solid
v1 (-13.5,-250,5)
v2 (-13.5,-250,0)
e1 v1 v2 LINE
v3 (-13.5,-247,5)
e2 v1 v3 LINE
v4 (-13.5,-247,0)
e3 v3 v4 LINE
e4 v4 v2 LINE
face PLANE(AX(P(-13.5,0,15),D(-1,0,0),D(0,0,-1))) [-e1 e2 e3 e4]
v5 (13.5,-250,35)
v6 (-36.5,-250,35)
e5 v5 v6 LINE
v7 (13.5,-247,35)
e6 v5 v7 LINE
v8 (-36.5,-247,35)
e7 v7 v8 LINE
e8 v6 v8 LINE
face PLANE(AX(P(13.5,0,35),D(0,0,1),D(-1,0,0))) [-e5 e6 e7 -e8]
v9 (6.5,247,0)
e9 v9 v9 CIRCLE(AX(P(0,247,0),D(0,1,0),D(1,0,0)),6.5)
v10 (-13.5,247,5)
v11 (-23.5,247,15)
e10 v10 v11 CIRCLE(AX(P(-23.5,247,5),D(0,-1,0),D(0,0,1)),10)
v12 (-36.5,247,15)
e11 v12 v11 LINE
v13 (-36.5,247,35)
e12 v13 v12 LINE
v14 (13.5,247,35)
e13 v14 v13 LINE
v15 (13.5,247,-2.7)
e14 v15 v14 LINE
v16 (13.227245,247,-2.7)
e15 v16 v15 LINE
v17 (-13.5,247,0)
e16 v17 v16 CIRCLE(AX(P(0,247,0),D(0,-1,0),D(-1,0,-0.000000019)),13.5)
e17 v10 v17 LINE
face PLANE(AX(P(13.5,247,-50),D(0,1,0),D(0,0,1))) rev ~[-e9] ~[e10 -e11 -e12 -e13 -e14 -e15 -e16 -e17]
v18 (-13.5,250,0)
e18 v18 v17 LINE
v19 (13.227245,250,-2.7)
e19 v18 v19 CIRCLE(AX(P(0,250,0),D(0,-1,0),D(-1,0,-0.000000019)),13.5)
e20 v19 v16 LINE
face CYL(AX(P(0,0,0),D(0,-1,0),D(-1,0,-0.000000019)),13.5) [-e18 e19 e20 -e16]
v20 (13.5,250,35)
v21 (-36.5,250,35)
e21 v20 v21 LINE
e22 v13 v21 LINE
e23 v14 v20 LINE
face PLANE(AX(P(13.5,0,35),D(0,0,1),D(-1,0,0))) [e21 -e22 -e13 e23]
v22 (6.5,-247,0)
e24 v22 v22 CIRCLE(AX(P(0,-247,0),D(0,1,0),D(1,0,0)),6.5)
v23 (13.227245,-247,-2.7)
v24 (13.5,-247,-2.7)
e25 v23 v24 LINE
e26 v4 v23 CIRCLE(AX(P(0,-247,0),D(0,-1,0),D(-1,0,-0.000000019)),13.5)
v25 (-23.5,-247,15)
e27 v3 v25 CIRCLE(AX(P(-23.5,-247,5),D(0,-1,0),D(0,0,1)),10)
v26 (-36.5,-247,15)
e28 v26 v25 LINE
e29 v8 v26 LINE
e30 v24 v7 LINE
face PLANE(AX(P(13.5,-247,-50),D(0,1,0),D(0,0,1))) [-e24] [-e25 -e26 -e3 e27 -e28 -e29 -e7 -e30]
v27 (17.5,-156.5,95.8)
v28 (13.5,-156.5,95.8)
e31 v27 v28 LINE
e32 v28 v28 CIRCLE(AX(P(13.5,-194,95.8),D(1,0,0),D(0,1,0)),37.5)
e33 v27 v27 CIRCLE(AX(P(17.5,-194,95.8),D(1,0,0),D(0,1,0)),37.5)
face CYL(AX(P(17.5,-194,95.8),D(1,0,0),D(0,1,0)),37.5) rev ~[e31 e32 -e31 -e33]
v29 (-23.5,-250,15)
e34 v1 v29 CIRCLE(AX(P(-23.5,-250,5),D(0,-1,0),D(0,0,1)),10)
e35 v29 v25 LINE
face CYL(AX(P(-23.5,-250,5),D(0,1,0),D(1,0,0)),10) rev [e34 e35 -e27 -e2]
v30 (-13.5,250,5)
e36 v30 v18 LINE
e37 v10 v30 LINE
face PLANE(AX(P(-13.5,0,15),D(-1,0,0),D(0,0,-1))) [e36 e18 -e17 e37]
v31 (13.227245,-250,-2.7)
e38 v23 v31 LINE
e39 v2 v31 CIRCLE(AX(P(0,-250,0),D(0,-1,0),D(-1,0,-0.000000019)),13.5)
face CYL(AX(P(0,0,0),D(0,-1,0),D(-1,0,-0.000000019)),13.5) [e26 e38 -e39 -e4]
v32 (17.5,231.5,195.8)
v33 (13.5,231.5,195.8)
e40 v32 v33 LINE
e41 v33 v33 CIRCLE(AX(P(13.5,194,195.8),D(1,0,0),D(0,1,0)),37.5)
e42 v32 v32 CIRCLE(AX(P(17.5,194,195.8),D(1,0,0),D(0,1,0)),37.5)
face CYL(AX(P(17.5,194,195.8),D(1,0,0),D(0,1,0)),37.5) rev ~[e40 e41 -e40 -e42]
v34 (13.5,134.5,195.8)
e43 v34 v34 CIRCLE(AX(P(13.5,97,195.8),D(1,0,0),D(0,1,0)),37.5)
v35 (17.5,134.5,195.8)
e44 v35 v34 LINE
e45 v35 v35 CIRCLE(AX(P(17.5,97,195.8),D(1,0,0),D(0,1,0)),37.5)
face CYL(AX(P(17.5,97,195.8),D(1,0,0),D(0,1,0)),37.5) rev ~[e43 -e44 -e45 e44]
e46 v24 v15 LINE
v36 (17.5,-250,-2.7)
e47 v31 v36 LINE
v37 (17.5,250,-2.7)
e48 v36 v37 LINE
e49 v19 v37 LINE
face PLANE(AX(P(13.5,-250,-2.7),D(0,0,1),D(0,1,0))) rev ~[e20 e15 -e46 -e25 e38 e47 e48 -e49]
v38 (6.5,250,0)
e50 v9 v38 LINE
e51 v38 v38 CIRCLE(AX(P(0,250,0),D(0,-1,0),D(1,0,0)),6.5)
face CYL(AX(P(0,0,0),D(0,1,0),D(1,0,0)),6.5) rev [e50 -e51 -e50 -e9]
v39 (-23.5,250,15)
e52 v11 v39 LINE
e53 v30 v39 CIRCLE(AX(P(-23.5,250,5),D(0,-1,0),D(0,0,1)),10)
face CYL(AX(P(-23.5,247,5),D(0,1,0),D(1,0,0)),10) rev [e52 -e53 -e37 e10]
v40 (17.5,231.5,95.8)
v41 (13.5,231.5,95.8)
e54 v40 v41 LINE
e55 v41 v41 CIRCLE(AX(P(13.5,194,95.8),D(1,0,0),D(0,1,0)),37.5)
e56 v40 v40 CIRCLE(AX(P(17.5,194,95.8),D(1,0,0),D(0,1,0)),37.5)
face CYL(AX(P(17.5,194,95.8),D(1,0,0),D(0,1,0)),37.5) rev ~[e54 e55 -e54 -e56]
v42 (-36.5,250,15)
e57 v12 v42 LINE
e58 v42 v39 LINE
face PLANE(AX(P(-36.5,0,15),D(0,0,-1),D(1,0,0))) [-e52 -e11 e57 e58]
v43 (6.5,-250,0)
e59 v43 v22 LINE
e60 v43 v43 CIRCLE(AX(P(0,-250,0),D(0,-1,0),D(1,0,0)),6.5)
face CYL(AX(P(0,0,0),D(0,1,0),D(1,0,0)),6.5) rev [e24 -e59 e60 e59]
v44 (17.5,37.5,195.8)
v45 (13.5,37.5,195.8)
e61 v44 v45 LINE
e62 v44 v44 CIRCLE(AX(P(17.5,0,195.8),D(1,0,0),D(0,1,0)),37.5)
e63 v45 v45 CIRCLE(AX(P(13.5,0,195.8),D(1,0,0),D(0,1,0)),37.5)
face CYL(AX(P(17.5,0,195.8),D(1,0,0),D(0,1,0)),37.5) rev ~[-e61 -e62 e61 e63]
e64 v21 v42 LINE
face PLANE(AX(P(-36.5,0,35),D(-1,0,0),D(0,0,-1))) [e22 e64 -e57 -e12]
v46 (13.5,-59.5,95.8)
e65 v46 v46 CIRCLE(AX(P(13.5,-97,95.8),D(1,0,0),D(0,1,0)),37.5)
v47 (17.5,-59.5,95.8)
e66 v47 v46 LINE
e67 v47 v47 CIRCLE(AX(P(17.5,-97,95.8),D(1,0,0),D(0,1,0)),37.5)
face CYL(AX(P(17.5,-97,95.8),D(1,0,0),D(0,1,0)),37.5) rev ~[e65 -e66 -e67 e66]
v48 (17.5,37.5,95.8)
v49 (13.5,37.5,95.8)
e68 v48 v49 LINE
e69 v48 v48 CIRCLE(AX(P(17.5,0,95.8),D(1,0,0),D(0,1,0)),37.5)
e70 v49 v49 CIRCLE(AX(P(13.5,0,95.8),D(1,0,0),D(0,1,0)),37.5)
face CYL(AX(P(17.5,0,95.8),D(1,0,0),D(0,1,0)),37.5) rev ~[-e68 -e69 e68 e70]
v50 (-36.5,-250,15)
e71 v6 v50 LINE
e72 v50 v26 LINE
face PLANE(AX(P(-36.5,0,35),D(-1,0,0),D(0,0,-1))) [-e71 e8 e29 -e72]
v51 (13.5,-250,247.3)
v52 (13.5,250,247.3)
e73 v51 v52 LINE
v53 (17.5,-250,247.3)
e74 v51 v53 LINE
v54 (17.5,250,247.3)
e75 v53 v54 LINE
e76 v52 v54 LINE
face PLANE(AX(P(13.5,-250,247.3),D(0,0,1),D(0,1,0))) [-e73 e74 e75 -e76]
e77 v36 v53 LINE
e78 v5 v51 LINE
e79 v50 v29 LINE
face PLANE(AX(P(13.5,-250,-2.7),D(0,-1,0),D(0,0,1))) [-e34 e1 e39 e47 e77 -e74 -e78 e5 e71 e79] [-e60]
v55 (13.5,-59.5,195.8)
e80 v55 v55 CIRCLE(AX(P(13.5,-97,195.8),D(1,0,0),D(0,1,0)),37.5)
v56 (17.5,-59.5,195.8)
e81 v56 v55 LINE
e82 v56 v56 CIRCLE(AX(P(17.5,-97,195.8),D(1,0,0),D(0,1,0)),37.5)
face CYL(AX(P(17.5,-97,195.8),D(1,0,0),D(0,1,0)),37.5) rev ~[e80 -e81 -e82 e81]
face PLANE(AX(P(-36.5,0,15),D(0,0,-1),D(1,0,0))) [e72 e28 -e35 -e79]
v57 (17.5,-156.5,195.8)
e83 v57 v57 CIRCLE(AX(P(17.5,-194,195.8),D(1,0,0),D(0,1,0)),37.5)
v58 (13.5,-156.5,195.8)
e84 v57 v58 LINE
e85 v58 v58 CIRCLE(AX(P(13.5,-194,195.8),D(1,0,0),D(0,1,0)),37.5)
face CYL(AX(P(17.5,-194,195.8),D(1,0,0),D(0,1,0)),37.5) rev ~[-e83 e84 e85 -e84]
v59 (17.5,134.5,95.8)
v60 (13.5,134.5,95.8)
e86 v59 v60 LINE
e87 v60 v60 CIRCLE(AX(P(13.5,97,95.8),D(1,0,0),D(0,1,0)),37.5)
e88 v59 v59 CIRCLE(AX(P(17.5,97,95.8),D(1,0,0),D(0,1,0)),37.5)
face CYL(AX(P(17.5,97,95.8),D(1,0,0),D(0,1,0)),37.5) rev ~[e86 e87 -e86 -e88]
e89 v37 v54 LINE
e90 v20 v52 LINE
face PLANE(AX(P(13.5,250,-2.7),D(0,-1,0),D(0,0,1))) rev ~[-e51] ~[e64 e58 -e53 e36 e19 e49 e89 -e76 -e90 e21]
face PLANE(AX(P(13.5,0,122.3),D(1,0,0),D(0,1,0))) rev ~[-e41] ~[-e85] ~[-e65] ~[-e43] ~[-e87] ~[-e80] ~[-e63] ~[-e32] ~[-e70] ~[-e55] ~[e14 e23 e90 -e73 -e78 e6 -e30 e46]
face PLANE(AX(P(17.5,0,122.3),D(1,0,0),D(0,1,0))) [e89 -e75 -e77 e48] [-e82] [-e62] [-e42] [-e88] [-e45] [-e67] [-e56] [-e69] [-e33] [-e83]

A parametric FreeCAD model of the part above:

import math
import FreeCAD as App
import Part
import Sketcher
Q = App.Units.Quantity


def edges_at(feature, points):
    """Names of the edges that pass closest to the given points."""
    edges = feature.Shape.Edges
    near = lambda p: min(range(len(edges)), key=lambda i: edges[i].distToShape(Part.Vertex(*p))[0])
    return sorted({f"Edge{near(p) + 1}" for p in points})

doc = App.newDocument("Part")
body = doc.addObject("PartDesign::Body", "Body")
body.AllowCompound = True

# Sketch on XZ plane
sketch1 = body.newObject("Sketcher::SketchObject", "Sketch")
sketch1.AttachmentSupport = (doc.getObject("XZ_Plane"), [""])
sketch1.MapMode = "FlatFace"
sketch1.addGeometry(Part.LineSegment(App.Vector(-13.5, 15, 0), App.Vector(-13.5, 0, 0)), False)
sketch1.addGeometry(Part.ArcOfCircle(Part.Circle(App.Vector(0, 0, 0), App.Vector(0, 0, 1), 13.5), math.radians(-180), math.radians(-12)), False)
sketch1.addGeometry(Part.LineSegment(App.Vector(13.23, -2.7, 0), App.Vector(13.5, -2.7, 0)), False)
sketch1.addGeometry(Part.LineSegment(App.Vector(13.5, -2.7, 0), App.Vector(13.5, 35, 0)), False)
sketch1.addGeometry(Part.LineSegment(App.Vector(13.5, 35, 0), App.Vector(-36.5, 35, 0)), False)
sketch1.addGeometry(Part.LineSegment(App.Vector(-36.5, 35, 0), App.Vector(-36.5, 15, 0)), False)
sketch1.addGeometry(Part.LineSegment(App.Vector(-36.5, 15, 0), App.Vector(-13.5, 15, 0)), False)
sketch1.addGeometry(Part.Circle(App.Vector(0, 0, 0), App.Vector(0, 0, 1), 6.5), False)
sketch1.addConstraint(Sketcher.Constraint("Tangent", 0, 2, 1, 1))
sketch1.addConstraint(Sketcher.Constraint("Coincident", 1, 2, 2, 1))
sketch1.addConstraint(Sketcher.Constraint("Coincident", 2, 2, 3, 1))
sketch1.addConstraint(Sketcher.Constraint("Coincident", 3, 2, 4, 1))
sketch1.addConstraint(Sketcher.Constraint("Coincident", 4, 2, 5, 1))
sketch1.addConstraint(Sketcher.Constraint("Coincident", 5, 2, 6, 1))
sketch1.addConstraint(Sketcher.Constraint("Coincident", 6, 2, 0, 1))
sketch1.addConstraint(Sketcher.Constraint("Vertical", 0))
sketch1.addConstraint(Sketcher.Constraint("Horizontal", 2))
sketch1.addConstraint(Sketcher.Constraint("Vertical", 3))
sketch1.addConstraint(Sketcher.Constraint("Horizontal", 4))
sketch1.addConstraint(Sketcher.Constraint("Vertical", 5))
sketch1.addConstraint(Sketcher.Constraint("Horizontal", 6))
sketch1.addConstraint(Sketcher.Constraint("Coincident", 1, 3, -1, 1))
sketch1.addConstraint(Sketcher.Constraint("Coincident", 7, 3, -1, 1))
sketch1.addConstraint(Sketcher.Constraint("Diameter", 7, Q("13 mm")))
sketch1.addConstraint(Sketcher.Constraint("Radius", 1, Q("13.5 mm")))
sketch1.addConstraint(Sketcher.Constraint("DistanceX", 4, 2, 4, 1, Q("50 mm")))
sketch1.addConstraint(Sketcher.Constraint("DistanceX", 6, 1, 6, 2, Q("23 mm")))
sketch1.addConstraint(Sketcher.Constraint("DistanceY", 0, 2, 0, 1, Q("15 mm")))
sketch1.addConstraint(Sketcher.Constraint("DistanceY", 5, 2, 5, 1, Q("20 mm")))
sketch1.addConstraint(Sketcher.Constraint("DistanceY", 3, 1, 3, 2, Q("37.7 mm")))
pad1 = body.newObject("PartDesign::Pad", "Pad")
pad1.Profile = sketch1
pad1.Length = 500
pad1.Midplane = True

# Sketch on YZ plane
sketch2 = body.newObject("Sketcher::SketchObject", "Sketch001")
sketch2.AttachmentSupport = (doc.getObject("YZ_Plane"), [""])
sketch2.MapMode = "FlatFace"
sketch2.AttachmentOffset = App.Placement(App.Vector(0, 0, 13.5), App.Rotation())
sketch2.addGeometry(Part.LineSegment(App.Vector(-247, 50, 0), App.Vector(-247, -50, 0)), False)
sketch2.addGeometry(Part.LineSegment(App.Vector(-247, -50, 0), App.Vector(247, -50, 0)), False)
sketch2.addGeometry(Part.LineSegment(App.Vector(247, -50, 0), App.Vector(247, 50, 0)), False)
sketch2.addGeometry(Part.LineSegment(App.Vector(247, 50, 0), App.Vector(-247, 50, 0)), False)
sketch2.addConstraint(Sketcher.Constraint("Coincident", 0, 2, 1, 1))
sketch2.addConstraint(Sketcher.Constraint("Coincident", 1, 2, 2, 1))
sketch2.addConstraint(Sketcher.Constraint("Coincident", 2, 2, 3, 1))
sketch2.addConstraint(Sketcher.Constraint("Coincident", 3, 2, 0, 1))
sketch2.addConstraint(Sketcher.Constraint("Vertical", 0))
sketch2.addConstraint(Sketcher.Constraint("Horizontal", 1))
sketch2.addConstraint(Sketcher.Constraint("Vertical", 2))
sketch2.addConstraint(Sketcher.Constraint("Horizontal", 3))
sketch2.addConstraint(Sketcher.Constraint("Symmetric", 0, 2, 2, 2, -1, 1))
sketch2.addConstraint(Sketcher.Constraint("DistanceX", 1, 1, 1, 2, Q("494 mm")))
sketch2.addConstraint(Sketcher.Constraint("DistanceY", 0, 2, 0, 1, Q("100 mm")))
pocket1 = body.newObject("PartDesign::Pocket", "Pocket")
pocket1.Profile = sketch2
pocket1.Length = 100
doc.recompute()

fillet = body.newObject("PartDesign::Fillet", "Fillet")
fillet.Base = (pocket1, edges_at(pocket1, [(-13.5, 248.5, 15), (-13.5, -248.5, 15)]))
fillet.Radius = 10

# Sketch on YZ plane
sketch3 = body.newObject("Sketcher::SketchObject", "Sketch002")
sketch3.AttachmentSupport = (doc.getObject("YZ_Plane"), [""])
sketch3.MapMode = "FlatFace"
sketch3.AttachmentOffset = App.Placement(App.Vector(0, 0, 13.5), App.Rotation())
sketch3.addGeometry(Part.LineSegment(App.Vector(-250, 247, 0), App.Vector(-250, -3, 0)), False)
sketch3.addGeometry(Part.LineSegment(App.Vector(-250, -3, 0), App.Vector(250, -3, 0)), False)
sketch3.addGeometry(Part.LineSegment(App.Vector(250, -3, 0), App.Vector(250, 247, 0)), False)
sketch3.addGeometry(Part.LineSegment(App.Vector(250, 247, 0), App.Vector(-250, 247, 0)), False)
sketch3.addConstraint(Sketcher.Constraint("Coincident", 0, 2, 1, 1))
sketch3.addConstraint(Sketcher.Constraint("Coincident", 1, 2, 2, 1))
sketch3.addConstraint(Sketcher.Constraint("Coincident", 2, 2, 3, 1))
sketch3.addConstraint(Sketcher.Constraint("Coincident", 3, 2, 0, 1))
sketch3.addConstraint(Sketcher.Constraint("Vertical", 0))
sketch3.addConstraint(Sketcher.Constraint("Horizontal", 1))
sketch3.addConstraint(Sketcher.Constraint("Vertical", 2))
sketch3.addConstraint(Sketcher.Constraint("Horizontal", 3))
sketch3.addConstraint(Sketcher.Constraint("DistanceX", 1, 1, 1, 2, Q("500 mm")))
sketch3.addConstraint(Sketcher.Constraint("DistanceY", 0, 2, 0, 1, Q("250 mm")))
sketch3.addConstraint(Sketcher.Constraint("DistanceX", 0, 2, -1, 1, Q("250 mm")))
sketch3.addConstraint(Sketcher.Constraint("DistanceY", 0, 2, -1, 1, Q("2.7 mm")))
pad2 = body.newObject("PartDesign::Pad", "Pad001")
pad2.Profile = sketch3
pad2.Length = 4

# Sketch on YZ plane
sketch4 = body.newObject("Sketcher::SketchObject", "Sketch003")
sketch4.AttachmentSupport = (doc.getObject("YZ_Plane"), [""])
sketch4.MapMode = "FlatFace"
sketch4.AttachmentOffset = App.Placement(App.Vector(0, 0, 17.5), App.Rotation())
sketch4.addGeometry(Part.Circle(App.Vector(-194, 96, 0), App.Vector(0, 0, 1), 38), False)
sketch4.addGeometry(Part.Circle(App.Vector(-194, 196, 0), App.Vector(0, 0, 1), 38), False)
sketch4.addGeometry(Part.Circle(App.Vector(-97, 96, 0), App.Vector(0, 0, 1), 38), False)
sketch4.addGeometry(Part.Circle(App.Vector(-97, 196, 0), App.Vector(0, 0, 1), 38), False)
sketch4.addGeometry(Part.Circle(App.Vector(0, 96, 0), App.Vector(0, 0, 1), 38), False)
sketch4.addGeometry(Part.Circle(App.Vector(0, 196, 0), App.Vector(0, 0, 1), 38), False)
sketch4.addGeometry(Part.Circle(App.Vector(97, 96, 0), App.Vector(0, 0, 1), 38), False)
sketch4.addGeometry(Part.Circle(App.Vector(97, 196, 0), App.Vector(0, 0, 1), 38), False)
sketch4.addGeometry(Part.Circle(App.Vector(194, 96, 0), App.Vector(0, 0, 1), 38), False)
sketch4.addGeometry(Part.Circle(App.Vector(194, 196, 0), App.Vector(0, 0, 1), 38), False)
sketch4.addConstraint(Sketcher.Constraint("Equal", 0, 1))
sketch4.addConstraint(Sketcher.Constraint("Equal", 1, 2))
sketch4.addConstraint(Sketcher.Constraint("Equal", 2, 3))
sketch4.addConstraint(Sketcher.Constraint("Equal", 3, 4))
sketch4.addConstraint(Sketcher.Constraint("Equal", 4, 5))
sketch4.addConstraint(Sketcher.Constraint("Equal", 5, 6))
sketch4.addConstraint(Sketcher.Constraint("Equal", 6, 7))
sketch4.addConstraint(Sketcher.Constraint("Equal", 7, 8))
sketch4.addConstraint(Sketcher.Constraint("Equal", 8, 9))
sketch4.addConstraint(Sketcher.Constraint("Symmetric", 2, 3, 6, 3, -2))
sketch4.addConstraint(Sketcher.Constraint("Symmetric", 3, 3, 7, 3, -2))
sketch4.addConstraint(Sketcher.Constraint("Symmetric", 0, 3, 8, 3, -2))
sketch4.addConstraint(Sketcher.Constraint("Symmetric", 1, 3, 9, 3, -2))
sketch4.addConstraint(Sketcher.Constraint("PointOnObject", 4, 3, -2))
sketch4.addConstraint(Sketcher.Constraint("PointOnObject", 5, 3, -2))
sketch4.addConstraint(Sketcher.Constraint("Horizontal", 0, 3, 2, 3))
sketch4.addConstraint(Sketcher.Constraint("Horizontal", 1, 3, 3, 3))
sketch4.addConstraint(Sketcher.Constraint("Horizontal", 2, 3, 4, 3))
sketch4.addConstraint(Sketcher.Constraint("Horizontal", 3, 3, 5, 3))
sketch4.addConstraint(Sketcher.Constraint("Vertical", 0, 3, 1, 3))
sketch4.addConstraint(Sketcher.Constraint("Vertical", 2, 3, 3, 3))
sketch4.addConstraint(Sketcher.Constraint("Diameter", 0, Q("75 mm")))
sketch4.addConstraint(Sketcher.Constraint("DistanceX", 0, 3, -1, 1, Q("194 mm")))
sketch4.addConstraint(Sketcher.Constraint("DistanceX", 2, 3, -1, 1, Q("97 mm")))
sketch4.addConstraint(Sketcher.Constraint("DistanceY", 0, 3, 1, 3, Q("100 mm")))
sketch4.addConstraint(Sketcher.Constraint("DistanceY", -1, 1, 0, 3, Q("95.8 mm")))
pocket2 = body.newObject("PartDesign::Pocket", "Pocket001")
pocket2.Profile = sketch4
pocket2.Length = 25

doc.recompute()
